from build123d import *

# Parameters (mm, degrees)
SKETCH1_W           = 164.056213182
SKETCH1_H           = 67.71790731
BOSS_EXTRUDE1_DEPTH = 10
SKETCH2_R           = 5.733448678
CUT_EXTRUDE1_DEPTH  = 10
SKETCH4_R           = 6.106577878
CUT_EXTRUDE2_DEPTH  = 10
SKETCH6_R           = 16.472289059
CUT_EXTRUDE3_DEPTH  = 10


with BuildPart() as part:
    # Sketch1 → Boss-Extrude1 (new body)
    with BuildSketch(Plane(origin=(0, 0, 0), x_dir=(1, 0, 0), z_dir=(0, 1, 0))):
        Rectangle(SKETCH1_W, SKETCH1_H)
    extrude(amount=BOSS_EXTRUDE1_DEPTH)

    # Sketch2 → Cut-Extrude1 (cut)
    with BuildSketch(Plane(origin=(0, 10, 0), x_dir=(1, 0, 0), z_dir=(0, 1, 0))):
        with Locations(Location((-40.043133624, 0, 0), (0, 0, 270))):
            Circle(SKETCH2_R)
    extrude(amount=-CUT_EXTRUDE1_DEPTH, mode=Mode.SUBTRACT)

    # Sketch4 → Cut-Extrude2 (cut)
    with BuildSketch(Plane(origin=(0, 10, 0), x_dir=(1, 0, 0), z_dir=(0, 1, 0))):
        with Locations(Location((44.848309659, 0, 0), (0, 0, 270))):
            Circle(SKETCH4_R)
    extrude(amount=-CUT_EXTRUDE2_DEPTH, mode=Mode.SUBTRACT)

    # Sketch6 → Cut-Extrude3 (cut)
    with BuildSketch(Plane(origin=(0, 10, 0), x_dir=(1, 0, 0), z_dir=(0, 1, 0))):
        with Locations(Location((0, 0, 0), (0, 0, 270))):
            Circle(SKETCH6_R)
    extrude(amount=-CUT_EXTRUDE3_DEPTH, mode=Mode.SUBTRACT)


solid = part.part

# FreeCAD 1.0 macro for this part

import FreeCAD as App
import Part
import Sketcher

V = App.Vector

doc = App.newDocument("Part")
body = doc.addObject("PartDesign::Body", "Body")

# Sketch on XZ plane
sketch1 = body.newObject("Sketcher::SketchObject", "Sketch")
sketch1.AttachmentSupport = (doc.getObject("XZ_Plane"), [""])
sketch1.MapMode = "FlatFace"
sketch1.addGeometry(Part.LineSegment(V(-82, -34, 0), V(-82, 34, 0)), False)
sketch1.addGeometry(Part.LineSegment(V(-82, 34, 0), V(82, 34, 0)), False)
sketch1.addGeometry(Part.LineSegment(V(82, 34, 0), V(82, -34, 0)), False)
sketch1.addGeometry(Part.LineSegment(V(82, -34, 0), V(-82, -34, 0)), False)
sketch1.addConstraint(Sketcher.Constraint("Coincident", 0, 2, 1, 1))
sketch1.addConstraint(Sketcher.Constraint("Coincident", 1, 2, 2, 1))
sketch1.addConstraint(Sketcher.Constraint("Coincident", 2, 2, 3, 1))
sketch1.addConstraint(Sketcher.Constraint("Coincident", 3, 2, 0, 1))
sketch1.addConstraint(Sketcher.Constraint("Vertical", 0))
sketch1.addConstraint(Sketcher.Constraint("Horizontal", 1))
sketch1.addConstraint(Sketcher.Constraint("Vertical", 2))
sketch1.addConstraint(Sketcher.Constraint("Horizontal", 3))
sketch1.addConstraint(Sketcher.Constraint("Symmetric", 0, 2, 2, 2, -1, 1))
sketch1.addConstraint(Sketcher.Constraint("DistanceX", 1, 1, 1, 2, 164.056213))
sketch1.addConstraint(Sketcher.Constraint("DistanceY", 0, 1, 0, 2, 67.717907))
pad1 = body.newObject("PartDesign::Pad", "Pad")
pad1.Profile = sketch1
pad1.Length = 10
pad1.Reversed = True

# Sketch on XZ plane
sketch2 = body.newObject("Sketcher::SketchObject", "Sketch001")
sketch2.AttachmentSupport = (doc.getObject("XZ_Plane"), [""])
sketch2.MapMode = "FlatFace"
sketch2.AttachmentOffset = App.Placement(V(0, 0, -10), App.Rotation())
sketch2.addGeometry(Part.Circle(V(-40, 0, 0), V(0, 0, 1), 6), False)
sketch2.addConstraint(Sketcher.Constraint("PointOnObject", 0, 3, -1))
sketch2.addConstraint(Sketcher.Constraint("Diameter", 0, 11.466897))
sketch2.addConstraint(Sketcher.Constraint("DistanceX", 0, 3, -1, 1, 40.043134))
pocket1 = body.newObject("PartDesign::Pocket", "Pocket")
pocket1.Profile = sketch2
pocket1.Length = 10
pocket1.Reversed = True

# Sketch on XZ plane
sketch3 = body.newObject("Sketcher::SketchObject", "Sketch002")
sketch3.AttachmentSupport = (doc.getObject("XZ_Plane"), [""])
sketch3.MapMode = "FlatFace"
sketch3.AttachmentOffset = App.Placement(V(0, 0, -10), App.Rotation())
sketch3.addGeometry(Part.Circle(V(45, 0, 0), V(0, 0, 1), 6), False)
sketch3.addConstraint(Sketcher.Constraint("PointOnObject", 0, 3, -1))
sketch3.addConstraint(Sketcher.Constraint("Diameter", 0, 12.213156))
sketch3.addConstraint(Sketcher.Constraint("DistanceX", -1, 1, 0, 3, 44.84831))
pocket2 = body.newObject("PartDesign::Pocket", "Pocket001")
pocket2.Profile = sketch3
pocket2.Length = 10
pocket2.Reversed = True

# Sketch on XZ plane
sketch4 = body.newObject("Sketcher::SketchObject", "Sketch003")
sketch4.AttachmentSupport = (doc.getObject("XZ_Plane"), [""])
sketch4.MapMode = "FlatFace"
sketch4.AttachmentOffset = App.Placement(V(0, 0, -10), App.Rotation())
sketch4.addGeometry(Part.Circle(V(0, 0, 0), V(0, 0, 1), 16), False)
sketch4.addConstraint(Sketcher.Constraint("Coincident", 0, 3, -1, 1))
sketch4.addConstraint(Sketcher.Constraint("Diameter", 0, 32.944578))
pocket3 = body.newObject("PartDesign::Pocket", "Pocket002")
pocket3.Profile = sketch4
pocket3.Length = 10
pocket3.Reversed = True

doc.recompute()
